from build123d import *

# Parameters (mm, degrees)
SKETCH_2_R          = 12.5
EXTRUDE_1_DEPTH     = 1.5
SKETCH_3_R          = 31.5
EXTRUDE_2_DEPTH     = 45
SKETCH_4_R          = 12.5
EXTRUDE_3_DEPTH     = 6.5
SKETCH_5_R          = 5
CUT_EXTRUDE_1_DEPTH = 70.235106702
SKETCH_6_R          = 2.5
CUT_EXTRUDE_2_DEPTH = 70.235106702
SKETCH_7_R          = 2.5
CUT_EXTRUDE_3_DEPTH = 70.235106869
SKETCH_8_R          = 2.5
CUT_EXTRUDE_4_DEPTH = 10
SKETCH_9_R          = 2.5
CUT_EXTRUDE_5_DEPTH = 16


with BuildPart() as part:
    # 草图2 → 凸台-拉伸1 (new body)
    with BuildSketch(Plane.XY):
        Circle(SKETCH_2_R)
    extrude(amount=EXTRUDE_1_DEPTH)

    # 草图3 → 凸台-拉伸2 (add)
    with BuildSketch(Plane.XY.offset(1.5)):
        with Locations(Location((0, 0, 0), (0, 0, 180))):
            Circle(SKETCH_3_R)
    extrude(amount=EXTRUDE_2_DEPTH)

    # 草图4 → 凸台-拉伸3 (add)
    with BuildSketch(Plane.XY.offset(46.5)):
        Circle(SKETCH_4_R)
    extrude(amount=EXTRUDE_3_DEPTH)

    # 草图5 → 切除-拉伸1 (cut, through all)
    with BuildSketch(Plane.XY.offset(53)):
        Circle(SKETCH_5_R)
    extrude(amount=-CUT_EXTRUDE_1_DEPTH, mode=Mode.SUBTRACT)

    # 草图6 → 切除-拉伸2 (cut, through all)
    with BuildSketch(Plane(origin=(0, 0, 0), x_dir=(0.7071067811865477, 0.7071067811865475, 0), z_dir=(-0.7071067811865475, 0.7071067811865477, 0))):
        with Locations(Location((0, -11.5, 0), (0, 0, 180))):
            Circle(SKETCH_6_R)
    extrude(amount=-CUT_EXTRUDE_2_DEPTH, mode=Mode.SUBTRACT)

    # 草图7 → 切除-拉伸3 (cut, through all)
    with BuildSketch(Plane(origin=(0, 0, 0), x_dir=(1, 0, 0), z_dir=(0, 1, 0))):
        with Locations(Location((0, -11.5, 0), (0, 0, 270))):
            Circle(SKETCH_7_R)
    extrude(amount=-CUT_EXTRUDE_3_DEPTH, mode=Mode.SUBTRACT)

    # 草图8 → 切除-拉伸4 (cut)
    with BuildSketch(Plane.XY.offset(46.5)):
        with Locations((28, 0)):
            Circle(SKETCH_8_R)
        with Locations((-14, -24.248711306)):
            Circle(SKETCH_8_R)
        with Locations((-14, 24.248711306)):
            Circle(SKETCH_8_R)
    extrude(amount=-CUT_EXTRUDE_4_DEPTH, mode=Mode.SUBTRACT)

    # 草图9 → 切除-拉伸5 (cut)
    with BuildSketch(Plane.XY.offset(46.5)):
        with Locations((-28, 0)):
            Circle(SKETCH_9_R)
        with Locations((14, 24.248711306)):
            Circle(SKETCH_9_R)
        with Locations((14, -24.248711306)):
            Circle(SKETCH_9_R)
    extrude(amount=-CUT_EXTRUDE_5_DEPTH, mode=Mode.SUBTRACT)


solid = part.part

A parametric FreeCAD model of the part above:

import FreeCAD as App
import Part
import Sketcher

doc = App.newDocument("Part")
params = doc.addObject("Spreadsheet::Sheet", "Params")
for row, (alias, value) in enumerate([
    ("sketch1_diameter", "25 mm"),
    ("pad1_length", "1.5 mm"),
    ("sketch2_diameter", "63 mm"),
    ("pad2_length", "45 mm"),
    ("sketch3_diameter", "25 mm"),
    ("pad3_length", "6.5 mm"),
    ("sketch4_diameter", "10 mm"),
    ("sketch5_diameter", "5 mm"),
    ("sketch6_diameter", "5 mm"),
    ("sketch7_diameter", "5 mm"),
    ("pocket4_length", "10 mm"),
    ("sketch8_diameter", "5 mm"),
    ("pocket5_length", "16 mm"),
], start=1):
    params.set(f"A{row}", alias)
    params.set(f"B{row}", "=" + value)
    params.setAlias(f"B{row}", alias)

body = doc.addObject("PartDesign::Body", "Body")

# Sketch on XY plane
sketch1 = body.newObject("Sketcher::SketchObject", "Sketch")
sketch1.AttachmentSupport = (doc.getObject("XY_Plane"), [""])
sketch1.MapMode = "FlatFace"
sketch1.addGeometry(Part.Circle(App.Vector(0, 0, 0), App.Vector(0, 0, 1), 12), False)
sketch1.addConstraint(Sketcher.Constraint("Coincident", 0, 3, -1, 1))
sketch1.addConstraint(Sketcher.Constraint("Diameter", 0, 25.0))
sketch1.setExpression("Constraints[1]", "Params.sketch1_diameter")
pad1 = body.newObject("PartDesign::Pad", "Pad")
pad1.Profile = sketch1
pad1.setExpression("Length", "Params.pad1_length")

# Sketch on XY plane
sketch2 = body.newObject("Sketcher::SketchObject", "Sketch001")
sketch2.AttachmentSupport = (doc.getObject("XY_Plane"), [""])
sketch2.MapMode = "FlatFace"
sketch2.AttachmentOffset = App.Placement(App.Vector(0, 0, 1.5), App.Rotation())
sketch2.addGeometry(Part.Circle(App.Vector(0, 0, 0), App.Vector(0, 0, 1), 32), False)
sketch2.addConstraint(Sketcher.Constraint("Coincident", 0, 3, -1, 1))
sketch2.addConstraint(Sketcher.Constraint("Diameter", 0, 63.0))
sketch2.setExpression("Constraints[1]", "Params.sketch2_diameter")
pad2 = body.newObject("PartDesign::Pad", "Pad001")
pad2.Profile = sketch2
pad2.setExpression("Length", "Params.pad2_length")

# Sketch on XY plane
sketch3 = body.newObject("Sketcher::SketchObject", "Sketch002")
sketch3.AttachmentSupport = (doc.getObject("XY_Plane"), [""])
sketch3.MapMode = "FlatFace"
sketch3.AttachmentOffset = App.Placement(App.Vector(0, 0, 46.5), App.Rotation())
sketch3.addGeometry(Part.Circle(App.Vector(0, 0, 0), App.Vector(0, 0, 1), 12), False)
sketch3.addConstraint(Sketcher.Constraint("Coincident", 0, 3, -1, 1))
sketch3.addConstraint(Sketcher.Constraint("Diameter", 0, 25.0))
sketch3.setExpression("Constraints[1]", "Params.sketch3_diameter")
pad3 = body.newObject("PartDesign::Pad", "Pad002")
pad3.Profile = sketch3
pad3.setExpression("Length", "Params.pad3_length")

# Sketch on XY plane
sketch4 = body.newObject("Sketcher::SketchObject", "Sketch003")
sketch4.AttachmentSupport = (doc.getObject("XY_Plane"), [""])
sketch4.MapMode = "FlatFace"
sketch4.AttachmentOffset = App.Placement(App.Vector(0, 0, 53), App.Rotation())
sketch4.addGeometry(Part.Circle(App.Vector(0, 0, 0), App.Vector(0, 0, 1), 5), False)
sketch4.addConstraint(Sketcher.Constraint("Coincident", 0, 3, -1, 1))
sketch4.addConstraint(Sketcher.Constraint("Diameter", 0, 10.0))
sketch4.setExpression("Constraints[1]", "Params.sketch4_diameter")
pocket1 = body.newObject("PartDesign::Pocket", "Pocket")
pocket1.Profile = sketch4
pocket1.Type = "ThroughAll"

# Sketch on an angled plane
sketch5 = body.newObject("Sketcher::SketchObject", "Sketch004")
sketch5.Placement = App.Placement(App.Vector(0, 0, 0), App.Rotation(App.Vector(0.707106781, 0.707106781, 0), App.Vector(0, 0, -0.999999999), App.Vector(-0.707106781, 0.707106781, 0), "ZXY"))
sketch5.addGeometry(Part.Circle(App.Vector(0, -11.5, 0), App.Vector(0, 0, 1), 2.5), False)
sketch5.addConstraint(Sketcher.Constraint("PointOnObject", 0, 3, -2))
sketch5.addConstraint(Sketcher.Constraint("Diameter", 0, 5.0))
sketch5.addConstraint(Sketcher.Constraint("DistanceY", 0, 3, -1, 1, 11.5))
sketch5.setExpression("Constraints[1]", "Params.sketch5_diameter")
pocket2 = body.newObject("PartDesign::Pocket", "Pocket001")
pocket2.Profile = sketch5
pocket2.Type = "ThroughAll"

# Sketch on XZ plane
sketch6 = body.newObject("Sketcher::SketchObject", "Sketch005")
sketch6.AttachmentSupport = (doc.getObject("XZ_Plane"), [""])
sketch6.MapMode = "FlatFace"
sketch6.addGeometry(Part.Circle(App.Vector(0, 11.5, 0), App.Vector(0, 0, 1), 2.5), False)
sketch6.addConstraint(Sketcher.Constraint("PointOnObject", 0, 3, -2))
sketch6.addConstraint(Sketcher.Constraint("Diameter", 0, 5.0))
sketch6.addConstraint(Sketcher.Constraint("DistanceY", -1, 1, 0, 3, 11.5))
sketch6.setExpression("Constraints[1]", "Params.sketch6_diameter")
pocket3 = body.newObject("PartDesign::Pocket", "Pocket002")
pocket3.Profile = sketch6
pocket3.Type = "ThroughAll"
pocket3.Reversed = True

# Sketch on XY plane
sketch7 = body.newObject("Sketcher::SketchObject", "Sketch006")
sketch7.AttachmentSupport = (doc.getObject("XY_Plane"), [""])
sketch7.MapMode = "FlatFace"
sketch7.AttachmentOffset = App.Placement(App.Vector(0, 0, 46.5), App.Rotation())
sketch7.addGeometry(Part.Circle(App.Vector(28, 0, 0), App.Vector(0, 0, 1), 2.5), False)
sketch7.addGeometry(Part.Circle(App.Vector(-14, -24.2, 0), App.Vector(0, 0, 1), 2.5), False)
sketch7.addGeometry(Part.Circle(App.Vector(-14, 24.2, 0), App.Vector(0, 0, 1), 2.5), False)
sketch7.addConstraint(Sketcher.Constraint("Equal", 0, 1))
sketch7.addConstraint(Sketcher.Constraint("Equal", 1, 2))
sketch7.addConstraint(Sketcher.Constraint("Symmetric", 1, 3, 2, 3, -1))
sketch7.addConstraint(Sketcher.Constraint("PointOnObject", 0, 3, -1))
sketch7.addConstraint(Sketcher.Constraint("Diameter", 0, 5.0))
sketch7.addConstraint(Sketcher.Constraint("DistanceX", -1, 1, 0, 3, 28.0))
sketch7.addConstraint(Sketcher.Constraint("DistanceX", 1, 3, -1, 1, 14.0))
sketch7.addConstraint(Sketcher.Constraint("DistanceY", 1, 3, -1, 1, 24.248711))
sketch7.setExpression("Constraints[4]", "Params.sketch7_diameter")
pocket4 = body.newObject("PartDesign::Pocket", "Pocket003")
pocket4.Profile = sketch7
pocket4.setExpression("Length", "Params.pocket4_length")

# Sketch on XY plane
sketch8 = body.newObject("Sketcher::SketchObject", "Sketch007")
sketch8.AttachmentSupport = (doc.getObject("XY_Plane"), [""])
sketch8.MapMode = "FlatFace"
sketch8.AttachmentOffset = App.Placement(App.Vector(0, 0, 46.5), App.Rotation())
sketch8.addGeometry(Part.Circle(App.Vector(-28, 0, 0), App.Vector(0, 0, 1), 2.5), False)
sketch8.addGeometry(Part.Circle(App.Vector(14, 24.2, 0), App.Vector(0, 0, 1), 2.5), False)
sketch8.addGeometry(Part.Circle(App.Vector(14, -24.2, 0), App.Vector(0, 0, 1), 2.5), False)
sketch8.addConstraint(Sketcher.Constraint("Equal", 0, 1))
sketch8.addConstraint(Sketcher.Constraint("Equal", 1, 2))
sketch8.addConstraint(Sketcher.Constraint("Symmetric", 1, 3, 2, 3, -1))
sketch8.addConstraint(Sketcher.Constraint("PointOnObject", 0, 3, -1))
sketch8.addConstraint(Sketcher.Constraint("Diameter", 0, 5.0))
sketch8.addConstraint(Sketcher.Constraint("DistanceX", 0, 3, -1, 1, 28.0))
sketch8.addConstraint(Sketcher.Constraint("DistanceX", -1, 1, 1, 3, 14.0))
sketch8.addConstraint(Sketcher.Constraint("DistanceY", -1, 1, 1, 3, 24.248711))
sketch8.setExpression("Constraints[4]", "Params.sketch8_diameter")
pocket5 = body.newObject("PartDesign::Pocket", "Pocket004")
pocket5.Profile = sketch8
pocket5.setExpression("Length", "Params.pocket5_length")

doc.recompute()
